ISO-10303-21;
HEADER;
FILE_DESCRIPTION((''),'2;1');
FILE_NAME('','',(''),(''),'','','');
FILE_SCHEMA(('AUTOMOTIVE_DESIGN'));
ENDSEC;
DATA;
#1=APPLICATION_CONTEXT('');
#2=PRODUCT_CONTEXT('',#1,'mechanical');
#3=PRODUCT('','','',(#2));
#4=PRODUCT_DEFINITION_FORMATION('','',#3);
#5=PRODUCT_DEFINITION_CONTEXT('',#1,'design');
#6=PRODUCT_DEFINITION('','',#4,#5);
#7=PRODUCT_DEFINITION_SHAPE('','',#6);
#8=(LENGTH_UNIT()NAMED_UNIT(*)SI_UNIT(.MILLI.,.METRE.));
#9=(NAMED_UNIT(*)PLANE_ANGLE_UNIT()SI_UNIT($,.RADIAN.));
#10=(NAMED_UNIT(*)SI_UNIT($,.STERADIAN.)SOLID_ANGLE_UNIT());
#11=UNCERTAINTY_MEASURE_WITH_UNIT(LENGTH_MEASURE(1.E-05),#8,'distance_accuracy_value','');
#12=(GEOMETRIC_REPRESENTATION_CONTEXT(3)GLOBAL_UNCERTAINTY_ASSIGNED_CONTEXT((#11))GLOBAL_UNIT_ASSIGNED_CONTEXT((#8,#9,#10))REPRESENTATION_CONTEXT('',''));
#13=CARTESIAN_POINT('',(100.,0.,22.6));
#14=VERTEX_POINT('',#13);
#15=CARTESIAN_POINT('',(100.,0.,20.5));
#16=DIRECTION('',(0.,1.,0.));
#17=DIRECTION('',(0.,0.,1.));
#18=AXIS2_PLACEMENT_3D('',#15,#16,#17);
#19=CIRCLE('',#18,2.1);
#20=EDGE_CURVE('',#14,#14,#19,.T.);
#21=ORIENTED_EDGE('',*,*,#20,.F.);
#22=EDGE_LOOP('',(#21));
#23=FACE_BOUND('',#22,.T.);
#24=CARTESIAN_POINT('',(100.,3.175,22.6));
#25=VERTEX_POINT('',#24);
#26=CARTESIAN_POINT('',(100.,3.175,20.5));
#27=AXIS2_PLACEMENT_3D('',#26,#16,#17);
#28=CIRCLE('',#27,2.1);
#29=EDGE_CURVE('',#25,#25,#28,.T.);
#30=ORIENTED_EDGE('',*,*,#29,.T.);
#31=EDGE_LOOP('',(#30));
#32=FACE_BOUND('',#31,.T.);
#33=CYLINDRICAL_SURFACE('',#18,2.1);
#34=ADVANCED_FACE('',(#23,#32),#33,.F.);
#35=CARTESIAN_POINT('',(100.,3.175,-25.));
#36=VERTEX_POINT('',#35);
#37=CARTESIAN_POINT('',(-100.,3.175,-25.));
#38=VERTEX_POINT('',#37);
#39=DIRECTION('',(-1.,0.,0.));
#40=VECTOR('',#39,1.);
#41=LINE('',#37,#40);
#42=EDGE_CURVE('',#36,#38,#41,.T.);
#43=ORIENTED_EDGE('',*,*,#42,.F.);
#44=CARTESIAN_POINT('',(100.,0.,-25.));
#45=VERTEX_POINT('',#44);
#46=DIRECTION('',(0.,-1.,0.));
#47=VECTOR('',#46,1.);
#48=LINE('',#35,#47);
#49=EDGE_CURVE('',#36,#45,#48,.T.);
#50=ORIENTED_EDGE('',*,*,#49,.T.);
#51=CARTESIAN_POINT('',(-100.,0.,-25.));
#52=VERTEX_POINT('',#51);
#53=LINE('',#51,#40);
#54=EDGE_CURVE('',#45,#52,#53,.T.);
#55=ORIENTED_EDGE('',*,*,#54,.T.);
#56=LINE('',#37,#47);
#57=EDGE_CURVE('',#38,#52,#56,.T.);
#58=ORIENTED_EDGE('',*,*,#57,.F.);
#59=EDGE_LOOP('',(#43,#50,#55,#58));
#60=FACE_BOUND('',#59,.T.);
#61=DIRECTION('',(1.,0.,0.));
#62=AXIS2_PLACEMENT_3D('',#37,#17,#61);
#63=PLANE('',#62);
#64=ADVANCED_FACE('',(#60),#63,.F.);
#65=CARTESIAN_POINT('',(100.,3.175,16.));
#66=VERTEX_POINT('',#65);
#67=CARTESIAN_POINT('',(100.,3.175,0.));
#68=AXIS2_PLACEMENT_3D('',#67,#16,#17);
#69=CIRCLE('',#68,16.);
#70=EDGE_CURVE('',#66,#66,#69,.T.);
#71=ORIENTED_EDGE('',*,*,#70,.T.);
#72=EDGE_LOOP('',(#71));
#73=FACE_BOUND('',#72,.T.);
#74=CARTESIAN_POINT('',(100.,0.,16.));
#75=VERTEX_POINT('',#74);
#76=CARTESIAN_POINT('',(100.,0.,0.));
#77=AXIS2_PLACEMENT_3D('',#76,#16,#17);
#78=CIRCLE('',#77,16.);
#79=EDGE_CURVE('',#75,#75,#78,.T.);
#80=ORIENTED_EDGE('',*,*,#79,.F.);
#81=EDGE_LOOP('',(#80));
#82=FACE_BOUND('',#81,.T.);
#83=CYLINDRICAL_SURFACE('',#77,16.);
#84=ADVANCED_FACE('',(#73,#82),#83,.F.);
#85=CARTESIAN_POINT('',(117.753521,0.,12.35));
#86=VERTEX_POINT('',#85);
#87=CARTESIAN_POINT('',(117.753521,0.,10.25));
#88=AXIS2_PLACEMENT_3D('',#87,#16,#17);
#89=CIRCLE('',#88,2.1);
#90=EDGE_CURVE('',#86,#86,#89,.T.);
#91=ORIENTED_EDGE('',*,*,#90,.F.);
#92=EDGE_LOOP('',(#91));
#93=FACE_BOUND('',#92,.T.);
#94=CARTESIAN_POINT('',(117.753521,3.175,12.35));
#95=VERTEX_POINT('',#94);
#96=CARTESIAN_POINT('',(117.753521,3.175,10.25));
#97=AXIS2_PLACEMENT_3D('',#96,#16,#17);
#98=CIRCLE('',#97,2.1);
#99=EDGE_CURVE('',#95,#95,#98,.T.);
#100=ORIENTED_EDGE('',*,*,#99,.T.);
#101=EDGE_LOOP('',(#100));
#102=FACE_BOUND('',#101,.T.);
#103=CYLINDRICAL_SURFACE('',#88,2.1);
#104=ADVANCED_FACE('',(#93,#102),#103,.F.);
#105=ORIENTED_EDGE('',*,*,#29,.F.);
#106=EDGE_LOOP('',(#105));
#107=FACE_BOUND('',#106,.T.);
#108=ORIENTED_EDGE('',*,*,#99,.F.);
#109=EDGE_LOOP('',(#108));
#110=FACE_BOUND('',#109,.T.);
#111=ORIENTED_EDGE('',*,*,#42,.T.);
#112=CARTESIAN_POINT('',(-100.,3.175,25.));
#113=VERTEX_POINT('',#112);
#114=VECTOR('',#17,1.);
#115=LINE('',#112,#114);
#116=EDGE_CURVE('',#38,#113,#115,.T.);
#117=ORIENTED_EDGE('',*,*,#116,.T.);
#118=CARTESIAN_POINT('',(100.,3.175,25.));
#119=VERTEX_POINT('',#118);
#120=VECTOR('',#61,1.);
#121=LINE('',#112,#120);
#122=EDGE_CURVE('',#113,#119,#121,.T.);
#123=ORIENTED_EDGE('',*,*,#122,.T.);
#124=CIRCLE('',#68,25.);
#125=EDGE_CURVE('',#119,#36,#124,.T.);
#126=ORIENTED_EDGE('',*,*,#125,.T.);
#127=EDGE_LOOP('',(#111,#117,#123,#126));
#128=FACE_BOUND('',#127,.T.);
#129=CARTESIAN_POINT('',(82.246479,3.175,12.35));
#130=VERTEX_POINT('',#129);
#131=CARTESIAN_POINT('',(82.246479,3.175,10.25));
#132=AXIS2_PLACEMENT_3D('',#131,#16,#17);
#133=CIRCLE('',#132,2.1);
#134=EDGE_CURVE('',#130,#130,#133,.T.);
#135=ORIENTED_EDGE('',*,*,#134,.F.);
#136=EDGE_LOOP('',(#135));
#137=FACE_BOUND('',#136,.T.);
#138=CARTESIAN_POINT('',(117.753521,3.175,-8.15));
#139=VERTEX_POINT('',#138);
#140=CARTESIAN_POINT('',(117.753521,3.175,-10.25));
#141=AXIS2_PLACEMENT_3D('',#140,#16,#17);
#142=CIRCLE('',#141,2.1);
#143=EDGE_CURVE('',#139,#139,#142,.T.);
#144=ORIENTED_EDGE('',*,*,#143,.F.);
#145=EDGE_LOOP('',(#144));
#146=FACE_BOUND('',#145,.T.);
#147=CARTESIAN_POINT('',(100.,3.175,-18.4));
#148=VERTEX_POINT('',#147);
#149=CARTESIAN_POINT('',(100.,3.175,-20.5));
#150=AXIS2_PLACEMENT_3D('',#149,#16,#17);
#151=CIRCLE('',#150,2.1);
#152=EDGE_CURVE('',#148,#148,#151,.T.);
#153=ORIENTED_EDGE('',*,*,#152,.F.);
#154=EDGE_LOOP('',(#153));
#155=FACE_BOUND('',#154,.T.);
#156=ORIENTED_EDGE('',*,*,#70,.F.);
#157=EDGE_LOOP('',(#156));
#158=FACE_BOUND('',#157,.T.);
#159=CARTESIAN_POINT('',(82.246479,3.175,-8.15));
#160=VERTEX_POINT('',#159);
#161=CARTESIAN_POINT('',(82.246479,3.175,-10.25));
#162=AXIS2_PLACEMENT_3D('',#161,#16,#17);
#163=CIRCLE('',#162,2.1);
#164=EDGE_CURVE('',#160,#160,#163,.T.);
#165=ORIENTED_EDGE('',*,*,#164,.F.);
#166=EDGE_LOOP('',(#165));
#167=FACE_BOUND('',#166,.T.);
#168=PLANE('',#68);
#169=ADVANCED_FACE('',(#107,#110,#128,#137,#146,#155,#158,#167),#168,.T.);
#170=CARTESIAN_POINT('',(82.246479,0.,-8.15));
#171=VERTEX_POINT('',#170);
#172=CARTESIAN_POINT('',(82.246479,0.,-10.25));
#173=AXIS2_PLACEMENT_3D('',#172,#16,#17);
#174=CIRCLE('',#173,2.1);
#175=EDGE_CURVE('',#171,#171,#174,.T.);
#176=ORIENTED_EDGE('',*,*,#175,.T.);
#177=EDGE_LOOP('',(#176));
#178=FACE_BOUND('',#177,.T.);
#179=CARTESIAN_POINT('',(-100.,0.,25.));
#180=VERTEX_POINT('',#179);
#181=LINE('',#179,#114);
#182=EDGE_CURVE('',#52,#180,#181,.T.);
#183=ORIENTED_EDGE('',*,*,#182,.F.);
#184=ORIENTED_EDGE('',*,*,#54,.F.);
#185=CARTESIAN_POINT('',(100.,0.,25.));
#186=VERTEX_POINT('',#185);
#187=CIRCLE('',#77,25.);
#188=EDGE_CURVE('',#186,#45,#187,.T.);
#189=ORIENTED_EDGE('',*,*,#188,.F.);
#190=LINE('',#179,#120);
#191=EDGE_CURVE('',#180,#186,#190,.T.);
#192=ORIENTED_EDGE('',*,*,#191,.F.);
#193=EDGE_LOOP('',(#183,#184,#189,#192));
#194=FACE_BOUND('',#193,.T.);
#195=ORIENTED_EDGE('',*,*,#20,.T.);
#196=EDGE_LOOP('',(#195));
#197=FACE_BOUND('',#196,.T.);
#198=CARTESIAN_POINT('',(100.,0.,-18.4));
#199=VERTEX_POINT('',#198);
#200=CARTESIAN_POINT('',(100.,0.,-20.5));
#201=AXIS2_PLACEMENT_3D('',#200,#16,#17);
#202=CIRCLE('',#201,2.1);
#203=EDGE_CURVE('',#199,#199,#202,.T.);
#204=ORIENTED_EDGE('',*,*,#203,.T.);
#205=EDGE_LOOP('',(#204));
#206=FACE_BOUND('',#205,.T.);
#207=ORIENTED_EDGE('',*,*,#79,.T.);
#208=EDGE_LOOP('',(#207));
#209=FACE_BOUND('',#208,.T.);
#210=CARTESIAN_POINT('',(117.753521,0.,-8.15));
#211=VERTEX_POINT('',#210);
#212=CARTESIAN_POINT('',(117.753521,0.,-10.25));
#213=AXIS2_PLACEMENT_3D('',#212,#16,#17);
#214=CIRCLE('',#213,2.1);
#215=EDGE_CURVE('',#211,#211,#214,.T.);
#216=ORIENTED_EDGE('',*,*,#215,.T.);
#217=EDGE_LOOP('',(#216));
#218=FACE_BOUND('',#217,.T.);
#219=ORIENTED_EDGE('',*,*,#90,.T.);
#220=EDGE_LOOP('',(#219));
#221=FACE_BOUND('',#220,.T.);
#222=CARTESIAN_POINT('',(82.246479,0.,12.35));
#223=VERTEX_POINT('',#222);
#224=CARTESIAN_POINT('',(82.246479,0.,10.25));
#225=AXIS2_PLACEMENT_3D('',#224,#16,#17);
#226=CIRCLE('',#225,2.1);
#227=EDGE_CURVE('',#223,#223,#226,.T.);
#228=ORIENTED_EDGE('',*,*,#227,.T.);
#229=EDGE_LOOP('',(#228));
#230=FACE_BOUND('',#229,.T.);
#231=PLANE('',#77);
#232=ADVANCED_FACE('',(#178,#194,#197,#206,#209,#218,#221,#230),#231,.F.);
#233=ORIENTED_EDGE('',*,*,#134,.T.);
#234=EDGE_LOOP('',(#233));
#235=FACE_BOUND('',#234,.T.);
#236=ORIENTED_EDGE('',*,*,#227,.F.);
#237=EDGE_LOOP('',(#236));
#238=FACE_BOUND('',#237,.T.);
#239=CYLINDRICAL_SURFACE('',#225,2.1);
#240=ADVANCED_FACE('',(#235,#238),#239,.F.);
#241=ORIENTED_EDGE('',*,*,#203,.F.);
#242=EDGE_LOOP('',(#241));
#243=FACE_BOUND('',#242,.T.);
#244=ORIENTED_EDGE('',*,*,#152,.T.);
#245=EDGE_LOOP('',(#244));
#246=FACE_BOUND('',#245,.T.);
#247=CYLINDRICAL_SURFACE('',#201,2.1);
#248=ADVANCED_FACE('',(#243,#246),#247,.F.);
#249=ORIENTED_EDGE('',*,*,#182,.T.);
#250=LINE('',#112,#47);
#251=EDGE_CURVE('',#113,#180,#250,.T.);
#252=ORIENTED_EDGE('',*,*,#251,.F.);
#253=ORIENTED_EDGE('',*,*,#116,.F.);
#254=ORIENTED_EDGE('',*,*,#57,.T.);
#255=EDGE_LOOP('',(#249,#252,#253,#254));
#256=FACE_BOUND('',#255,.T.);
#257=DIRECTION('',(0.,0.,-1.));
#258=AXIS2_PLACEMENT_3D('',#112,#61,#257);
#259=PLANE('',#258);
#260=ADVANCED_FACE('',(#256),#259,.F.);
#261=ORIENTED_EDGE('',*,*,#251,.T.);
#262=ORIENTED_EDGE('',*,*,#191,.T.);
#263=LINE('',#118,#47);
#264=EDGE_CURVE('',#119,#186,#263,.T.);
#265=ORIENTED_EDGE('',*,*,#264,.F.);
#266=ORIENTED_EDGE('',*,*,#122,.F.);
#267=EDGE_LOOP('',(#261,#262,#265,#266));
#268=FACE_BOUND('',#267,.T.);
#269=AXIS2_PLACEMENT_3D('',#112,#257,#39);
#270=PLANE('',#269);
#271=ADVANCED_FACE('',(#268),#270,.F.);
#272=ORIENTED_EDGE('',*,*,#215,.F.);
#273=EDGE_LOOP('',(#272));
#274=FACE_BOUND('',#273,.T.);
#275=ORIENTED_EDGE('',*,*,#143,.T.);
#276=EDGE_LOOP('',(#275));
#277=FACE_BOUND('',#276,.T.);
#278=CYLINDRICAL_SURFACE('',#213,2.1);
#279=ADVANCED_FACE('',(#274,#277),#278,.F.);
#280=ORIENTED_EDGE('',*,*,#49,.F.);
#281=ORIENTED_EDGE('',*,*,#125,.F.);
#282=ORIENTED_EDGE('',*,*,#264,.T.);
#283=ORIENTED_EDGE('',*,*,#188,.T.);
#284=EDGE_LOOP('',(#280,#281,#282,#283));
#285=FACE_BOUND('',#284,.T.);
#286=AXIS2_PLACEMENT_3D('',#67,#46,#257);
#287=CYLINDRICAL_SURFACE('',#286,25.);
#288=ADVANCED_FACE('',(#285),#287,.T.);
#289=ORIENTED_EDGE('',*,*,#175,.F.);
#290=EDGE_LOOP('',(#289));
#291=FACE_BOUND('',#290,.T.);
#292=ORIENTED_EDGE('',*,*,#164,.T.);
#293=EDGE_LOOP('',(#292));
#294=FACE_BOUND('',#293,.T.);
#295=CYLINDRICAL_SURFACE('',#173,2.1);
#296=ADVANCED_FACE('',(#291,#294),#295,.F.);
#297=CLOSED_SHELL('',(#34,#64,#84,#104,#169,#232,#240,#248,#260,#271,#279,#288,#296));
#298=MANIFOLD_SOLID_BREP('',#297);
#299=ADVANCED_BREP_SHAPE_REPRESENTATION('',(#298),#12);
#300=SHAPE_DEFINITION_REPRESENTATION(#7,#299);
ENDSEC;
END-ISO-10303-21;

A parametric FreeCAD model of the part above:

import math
import FreeCAD as App
import Part
import Sketcher
from FreeCAD import Vector

doc = App.newDocument("Part")
body = doc.addObject("PartDesign::Body", "Body")

# Sketch on XZ plane
sketch1 = body.newObject("Sketcher::SketchObject", "Sketch")
sketch1.AttachmentSupport = (doc.getObject("XZ_Plane"), [""])
sketch1.MapMode = "FlatFace"
sketch1.addGeometry(Part.LineSegment(Vector(-100, 25, 0), Vector(100, 25, 0)), False)
sketch1.addGeometry(Part.ArcOfCircle(Part.Circle(Vector(100, 0, 0), Vector(0, 0, 1), 25), math.radians(-90), math.radians(90)), False)
sketch1.addGeometry(Part.LineSegment(Vector(100, -25, 0), Vector(-100, -25, 0)), False)
sketch1.addGeometry(Part.LineSegment(Vector(-100, -25, 0), Vector(-100, 25, 0)), False)
sketch1.addConstraint(Sketcher.Constraint("Tangent", 0, 2, 1, 2))
sketch1.addConstraint(Sketcher.Constraint("Tangent", 1, 1, 2, 1))
sketch1.addConstraint(Sketcher.Constraint("Coincident", 2, 2, 3, 1))
sketch1.addConstraint(Sketcher.Constraint("Coincident", 3, 2, 0, 1))
sketch1.addConstraint(Sketcher.Constraint("Horizontal", 0))
sketch1.addConstraint(Sketcher.Constraint("Horizontal", 2))
sketch1.addConstraint(Sketcher.Constraint("Vertical", 3))
sketch1.addConstraint(Sketcher.Constraint("Symmetric", 0, 2, 2, 2, -1, 1))
sketch1.addConstraint(Sketcher.Constraint("Radius", 1, 25.0))
sketch1.addConstraint(Sketcher.Constraint("DistanceX", 0, 1, 0, 2, 200.0))
pad1 = body.newObject("PartDesign::Pad", "Pad")
pad1.Profile = sketch1
pad1.Length = 3.175
pad1.Reversed = True

# Sketch on XZ plane
sketch2 = body.newObject("Sketcher::SketchObject", "Sketch001")
sketch2.AttachmentSupport = (doc.getObject("XZ_Plane"), [""])
sketch2.MapMode = "FlatFace"
sketch2.AttachmentOffset = App.Placement(Vector(0, 0, -3.175), App.Rotation())
sketch2.addGeometry(Part.Circle(Vector(100, 0, 0), Vector(0, 0, 1), 16), False)
sketch2.addGeometry(Part.Circle(Vector(100, -20.5, 0), Vector(0, 0, 1), 2.1), False)
sketch2.addGeometry(Part.Circle(Vector(117.753521, -10.25, 0), Vector(0, 0, 1), 2.1), False)
sketch2.addGeometry(Part.Circle(Vector(117.753521, 10.25, 0), Vector(0, 0, 1), 2.1), False)
sketch2.addGeometry(Part.Circle(Vector(100, 20.5, 0), Vector(0, 0, 1), 2.1), False)
sketch2.addGeometry(Part.Circle(Vector(82.246479, 10.25, 0), Vector(0, 0, 1), 2.1), False)
sketch2.addGeometry(Part.Circle(Vector(82.246479, -10.25, 0), Vector(0, 0, 1), 2.1), False)
sketch2.addConstraint(Sketcher.Constraint("Equal", 1, 2))
sketch2.addConstraint(Sketcher.Constraint("Equal", 2, 3))
sketch2.addConstraint(Sketcher.Constraint("Equal", 3, 4))
sketch2.addConstraint(Sketcher.Constraint("Equal", 4, 5))
sketch2.addConstraint(Sketcher.Constraint("Equal", 5, 6))
sketch2.addConstraint(Sketcher.Constraint("Symmetric", 2, 3, 3, 3, -1))
sketch2.addConstraint(Sketcher.Constraint("Symmetric", 1, 3, 4, 3, -1))
sketch2.addConstraint(Sketcher.Constraint("Symmetric", 5, 3, 6, 3, -1))
sketch2.addConstraint(Sketcher.Constraint("PointOnObject", 0, 3, -1))
sketch2.addConstraint(Sketcher.Constraint("Horizontal", 3, 3, 5, 3))
sketch2.addConstraint(Sketcher.Constraint("Vertical", 0, 3, 1, 3))
sketch2.addConstraint(Sketcher.Constraint("Diameter", 0, 32.0))
sketch2.addConstraint(Sketcher.Constraint("Diameter", 1, 4.2))
sketch2.addConstraint(Sketcher.Constraint("DistanceX", -1, 1, 0, 3, 100.0))
sketch2.addConstraint(Sketcher.Constraint("DistanceY", 1, 3, 4, 3, 41.0))
sketch2.addConstraint(Sketcher.Constraint("DistanceY", 2, 3, 3, 3, 20.5))
sketch2.addConstraint(Sketcher.Constraint("DistanceX", -1, 1, 2, 3, 117.753521))
sketch2.addConstraint(Sketcher.Constraint("DistanceX", -1, 1, 5, 3, 82.246479))
pocket1 = body.newObject("PartDesign::Pocket", "Pocket")
pocket1.Profile = sketch2
pocket1.Type = "ThroughAll"
pocket1.Reversed = True

doc.recompute()
